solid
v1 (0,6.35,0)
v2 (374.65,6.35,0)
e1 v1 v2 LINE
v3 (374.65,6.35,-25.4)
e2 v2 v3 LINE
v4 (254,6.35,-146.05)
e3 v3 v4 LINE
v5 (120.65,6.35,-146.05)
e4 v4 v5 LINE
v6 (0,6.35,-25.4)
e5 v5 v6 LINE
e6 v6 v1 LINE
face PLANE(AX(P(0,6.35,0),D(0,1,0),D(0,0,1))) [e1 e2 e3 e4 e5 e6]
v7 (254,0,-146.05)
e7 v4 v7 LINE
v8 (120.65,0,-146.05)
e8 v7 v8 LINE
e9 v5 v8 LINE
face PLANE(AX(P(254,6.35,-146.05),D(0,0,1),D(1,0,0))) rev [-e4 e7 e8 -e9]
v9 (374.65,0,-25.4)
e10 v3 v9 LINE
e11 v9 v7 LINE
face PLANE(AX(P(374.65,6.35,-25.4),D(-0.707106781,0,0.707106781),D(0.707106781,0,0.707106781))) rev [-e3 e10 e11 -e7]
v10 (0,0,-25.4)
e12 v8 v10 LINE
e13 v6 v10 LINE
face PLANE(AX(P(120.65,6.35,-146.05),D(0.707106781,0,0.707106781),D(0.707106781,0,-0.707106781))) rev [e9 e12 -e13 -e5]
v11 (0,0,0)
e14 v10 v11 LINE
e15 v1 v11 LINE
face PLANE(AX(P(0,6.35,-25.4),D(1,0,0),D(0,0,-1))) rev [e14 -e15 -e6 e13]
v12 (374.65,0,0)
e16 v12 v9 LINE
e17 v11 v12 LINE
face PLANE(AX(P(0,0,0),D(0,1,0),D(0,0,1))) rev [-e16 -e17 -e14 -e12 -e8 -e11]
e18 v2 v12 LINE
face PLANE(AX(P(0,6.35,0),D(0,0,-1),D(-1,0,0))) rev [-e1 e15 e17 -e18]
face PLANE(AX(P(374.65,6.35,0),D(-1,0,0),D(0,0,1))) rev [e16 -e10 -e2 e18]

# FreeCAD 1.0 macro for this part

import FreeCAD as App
import Part
import Sketcher
Q = App.Units.Quantity


def add_polygon(sketch, points):
    """Adds a closed chain of lines whose ends are joined by coincident constraints."""
    first, n = sketch.GeometryCount, len(points)
    for a, b in zip(points, points[1:] + points[:1]):
        sketch.addGeometry(Part.LineSegment(App.Vector(*a, 0), App.Vector(*b, 0)), False)
    for i in range(n):
        sketch.addConstraint(Sketcher.Constraint("Coincident", first + i, 2, first + (i + 1) % n, 1))

doc = App.newDocument("Part")
body = doc.addObject("PartDesign::Body", "Body")

sketch1 = doc.addObject("Sketcher::SketchObject", "Sketch")
body.addObject(sketch1)
sketch1.AttachmentSupport = (doc.XZ_Plane, [""])
sketch1.MapMode = "FlatFace"
add_polygon(sketch1, [(0, 0), (375, 0), (375, -25), (254, -146), (121, -146), (0, -25)])
sketch1.addConstraint(Sketcher.Constraint("Horizontal", 0))
sketch1.addConstraint(Sketcher.Constraint("Vertical", 1))
sketch1.addConstraint(Sketcher.Constraint("Horizontal", 3))
sketch1.addConstraint(Sketcher.Constraint("Vertical", 5))
sketch1.addConstraint(Sketcher.Constraint("Coincident", 5, 2, -1, 1))
sketch1.addConstraint(Sketcher.Constraint("Perpendicular", 2, 4))
sketch1.addConstraint(Sketcher.Constraint("Horizontal", 1, 2, 4, 2))
sketch1.addConstraint(Sketcher.Constraint("Equal", 2, 4))
sketch1.addConstraint(Sketcher.Constraint("DistanceY", 1, 2, 1, 1, Q("1 in")))
sketch1.addConstraint(Sketcher.Constraint("DistanceX", -1, 1, 2, 2, Q("10 in")))
sketch1.addConstraint(Sketcher.Constraint("DistanceX", 0, 1, 0, 2, Q("14.75 in")))
pad1 = doc.addObject("PartDesign::Pad", "Pad")
body.addObject(pad1)
pad1.Profile = sketch1
pad1.Length = Q("0.25 in")
pad1.Reversed = True

doc.recompute()
